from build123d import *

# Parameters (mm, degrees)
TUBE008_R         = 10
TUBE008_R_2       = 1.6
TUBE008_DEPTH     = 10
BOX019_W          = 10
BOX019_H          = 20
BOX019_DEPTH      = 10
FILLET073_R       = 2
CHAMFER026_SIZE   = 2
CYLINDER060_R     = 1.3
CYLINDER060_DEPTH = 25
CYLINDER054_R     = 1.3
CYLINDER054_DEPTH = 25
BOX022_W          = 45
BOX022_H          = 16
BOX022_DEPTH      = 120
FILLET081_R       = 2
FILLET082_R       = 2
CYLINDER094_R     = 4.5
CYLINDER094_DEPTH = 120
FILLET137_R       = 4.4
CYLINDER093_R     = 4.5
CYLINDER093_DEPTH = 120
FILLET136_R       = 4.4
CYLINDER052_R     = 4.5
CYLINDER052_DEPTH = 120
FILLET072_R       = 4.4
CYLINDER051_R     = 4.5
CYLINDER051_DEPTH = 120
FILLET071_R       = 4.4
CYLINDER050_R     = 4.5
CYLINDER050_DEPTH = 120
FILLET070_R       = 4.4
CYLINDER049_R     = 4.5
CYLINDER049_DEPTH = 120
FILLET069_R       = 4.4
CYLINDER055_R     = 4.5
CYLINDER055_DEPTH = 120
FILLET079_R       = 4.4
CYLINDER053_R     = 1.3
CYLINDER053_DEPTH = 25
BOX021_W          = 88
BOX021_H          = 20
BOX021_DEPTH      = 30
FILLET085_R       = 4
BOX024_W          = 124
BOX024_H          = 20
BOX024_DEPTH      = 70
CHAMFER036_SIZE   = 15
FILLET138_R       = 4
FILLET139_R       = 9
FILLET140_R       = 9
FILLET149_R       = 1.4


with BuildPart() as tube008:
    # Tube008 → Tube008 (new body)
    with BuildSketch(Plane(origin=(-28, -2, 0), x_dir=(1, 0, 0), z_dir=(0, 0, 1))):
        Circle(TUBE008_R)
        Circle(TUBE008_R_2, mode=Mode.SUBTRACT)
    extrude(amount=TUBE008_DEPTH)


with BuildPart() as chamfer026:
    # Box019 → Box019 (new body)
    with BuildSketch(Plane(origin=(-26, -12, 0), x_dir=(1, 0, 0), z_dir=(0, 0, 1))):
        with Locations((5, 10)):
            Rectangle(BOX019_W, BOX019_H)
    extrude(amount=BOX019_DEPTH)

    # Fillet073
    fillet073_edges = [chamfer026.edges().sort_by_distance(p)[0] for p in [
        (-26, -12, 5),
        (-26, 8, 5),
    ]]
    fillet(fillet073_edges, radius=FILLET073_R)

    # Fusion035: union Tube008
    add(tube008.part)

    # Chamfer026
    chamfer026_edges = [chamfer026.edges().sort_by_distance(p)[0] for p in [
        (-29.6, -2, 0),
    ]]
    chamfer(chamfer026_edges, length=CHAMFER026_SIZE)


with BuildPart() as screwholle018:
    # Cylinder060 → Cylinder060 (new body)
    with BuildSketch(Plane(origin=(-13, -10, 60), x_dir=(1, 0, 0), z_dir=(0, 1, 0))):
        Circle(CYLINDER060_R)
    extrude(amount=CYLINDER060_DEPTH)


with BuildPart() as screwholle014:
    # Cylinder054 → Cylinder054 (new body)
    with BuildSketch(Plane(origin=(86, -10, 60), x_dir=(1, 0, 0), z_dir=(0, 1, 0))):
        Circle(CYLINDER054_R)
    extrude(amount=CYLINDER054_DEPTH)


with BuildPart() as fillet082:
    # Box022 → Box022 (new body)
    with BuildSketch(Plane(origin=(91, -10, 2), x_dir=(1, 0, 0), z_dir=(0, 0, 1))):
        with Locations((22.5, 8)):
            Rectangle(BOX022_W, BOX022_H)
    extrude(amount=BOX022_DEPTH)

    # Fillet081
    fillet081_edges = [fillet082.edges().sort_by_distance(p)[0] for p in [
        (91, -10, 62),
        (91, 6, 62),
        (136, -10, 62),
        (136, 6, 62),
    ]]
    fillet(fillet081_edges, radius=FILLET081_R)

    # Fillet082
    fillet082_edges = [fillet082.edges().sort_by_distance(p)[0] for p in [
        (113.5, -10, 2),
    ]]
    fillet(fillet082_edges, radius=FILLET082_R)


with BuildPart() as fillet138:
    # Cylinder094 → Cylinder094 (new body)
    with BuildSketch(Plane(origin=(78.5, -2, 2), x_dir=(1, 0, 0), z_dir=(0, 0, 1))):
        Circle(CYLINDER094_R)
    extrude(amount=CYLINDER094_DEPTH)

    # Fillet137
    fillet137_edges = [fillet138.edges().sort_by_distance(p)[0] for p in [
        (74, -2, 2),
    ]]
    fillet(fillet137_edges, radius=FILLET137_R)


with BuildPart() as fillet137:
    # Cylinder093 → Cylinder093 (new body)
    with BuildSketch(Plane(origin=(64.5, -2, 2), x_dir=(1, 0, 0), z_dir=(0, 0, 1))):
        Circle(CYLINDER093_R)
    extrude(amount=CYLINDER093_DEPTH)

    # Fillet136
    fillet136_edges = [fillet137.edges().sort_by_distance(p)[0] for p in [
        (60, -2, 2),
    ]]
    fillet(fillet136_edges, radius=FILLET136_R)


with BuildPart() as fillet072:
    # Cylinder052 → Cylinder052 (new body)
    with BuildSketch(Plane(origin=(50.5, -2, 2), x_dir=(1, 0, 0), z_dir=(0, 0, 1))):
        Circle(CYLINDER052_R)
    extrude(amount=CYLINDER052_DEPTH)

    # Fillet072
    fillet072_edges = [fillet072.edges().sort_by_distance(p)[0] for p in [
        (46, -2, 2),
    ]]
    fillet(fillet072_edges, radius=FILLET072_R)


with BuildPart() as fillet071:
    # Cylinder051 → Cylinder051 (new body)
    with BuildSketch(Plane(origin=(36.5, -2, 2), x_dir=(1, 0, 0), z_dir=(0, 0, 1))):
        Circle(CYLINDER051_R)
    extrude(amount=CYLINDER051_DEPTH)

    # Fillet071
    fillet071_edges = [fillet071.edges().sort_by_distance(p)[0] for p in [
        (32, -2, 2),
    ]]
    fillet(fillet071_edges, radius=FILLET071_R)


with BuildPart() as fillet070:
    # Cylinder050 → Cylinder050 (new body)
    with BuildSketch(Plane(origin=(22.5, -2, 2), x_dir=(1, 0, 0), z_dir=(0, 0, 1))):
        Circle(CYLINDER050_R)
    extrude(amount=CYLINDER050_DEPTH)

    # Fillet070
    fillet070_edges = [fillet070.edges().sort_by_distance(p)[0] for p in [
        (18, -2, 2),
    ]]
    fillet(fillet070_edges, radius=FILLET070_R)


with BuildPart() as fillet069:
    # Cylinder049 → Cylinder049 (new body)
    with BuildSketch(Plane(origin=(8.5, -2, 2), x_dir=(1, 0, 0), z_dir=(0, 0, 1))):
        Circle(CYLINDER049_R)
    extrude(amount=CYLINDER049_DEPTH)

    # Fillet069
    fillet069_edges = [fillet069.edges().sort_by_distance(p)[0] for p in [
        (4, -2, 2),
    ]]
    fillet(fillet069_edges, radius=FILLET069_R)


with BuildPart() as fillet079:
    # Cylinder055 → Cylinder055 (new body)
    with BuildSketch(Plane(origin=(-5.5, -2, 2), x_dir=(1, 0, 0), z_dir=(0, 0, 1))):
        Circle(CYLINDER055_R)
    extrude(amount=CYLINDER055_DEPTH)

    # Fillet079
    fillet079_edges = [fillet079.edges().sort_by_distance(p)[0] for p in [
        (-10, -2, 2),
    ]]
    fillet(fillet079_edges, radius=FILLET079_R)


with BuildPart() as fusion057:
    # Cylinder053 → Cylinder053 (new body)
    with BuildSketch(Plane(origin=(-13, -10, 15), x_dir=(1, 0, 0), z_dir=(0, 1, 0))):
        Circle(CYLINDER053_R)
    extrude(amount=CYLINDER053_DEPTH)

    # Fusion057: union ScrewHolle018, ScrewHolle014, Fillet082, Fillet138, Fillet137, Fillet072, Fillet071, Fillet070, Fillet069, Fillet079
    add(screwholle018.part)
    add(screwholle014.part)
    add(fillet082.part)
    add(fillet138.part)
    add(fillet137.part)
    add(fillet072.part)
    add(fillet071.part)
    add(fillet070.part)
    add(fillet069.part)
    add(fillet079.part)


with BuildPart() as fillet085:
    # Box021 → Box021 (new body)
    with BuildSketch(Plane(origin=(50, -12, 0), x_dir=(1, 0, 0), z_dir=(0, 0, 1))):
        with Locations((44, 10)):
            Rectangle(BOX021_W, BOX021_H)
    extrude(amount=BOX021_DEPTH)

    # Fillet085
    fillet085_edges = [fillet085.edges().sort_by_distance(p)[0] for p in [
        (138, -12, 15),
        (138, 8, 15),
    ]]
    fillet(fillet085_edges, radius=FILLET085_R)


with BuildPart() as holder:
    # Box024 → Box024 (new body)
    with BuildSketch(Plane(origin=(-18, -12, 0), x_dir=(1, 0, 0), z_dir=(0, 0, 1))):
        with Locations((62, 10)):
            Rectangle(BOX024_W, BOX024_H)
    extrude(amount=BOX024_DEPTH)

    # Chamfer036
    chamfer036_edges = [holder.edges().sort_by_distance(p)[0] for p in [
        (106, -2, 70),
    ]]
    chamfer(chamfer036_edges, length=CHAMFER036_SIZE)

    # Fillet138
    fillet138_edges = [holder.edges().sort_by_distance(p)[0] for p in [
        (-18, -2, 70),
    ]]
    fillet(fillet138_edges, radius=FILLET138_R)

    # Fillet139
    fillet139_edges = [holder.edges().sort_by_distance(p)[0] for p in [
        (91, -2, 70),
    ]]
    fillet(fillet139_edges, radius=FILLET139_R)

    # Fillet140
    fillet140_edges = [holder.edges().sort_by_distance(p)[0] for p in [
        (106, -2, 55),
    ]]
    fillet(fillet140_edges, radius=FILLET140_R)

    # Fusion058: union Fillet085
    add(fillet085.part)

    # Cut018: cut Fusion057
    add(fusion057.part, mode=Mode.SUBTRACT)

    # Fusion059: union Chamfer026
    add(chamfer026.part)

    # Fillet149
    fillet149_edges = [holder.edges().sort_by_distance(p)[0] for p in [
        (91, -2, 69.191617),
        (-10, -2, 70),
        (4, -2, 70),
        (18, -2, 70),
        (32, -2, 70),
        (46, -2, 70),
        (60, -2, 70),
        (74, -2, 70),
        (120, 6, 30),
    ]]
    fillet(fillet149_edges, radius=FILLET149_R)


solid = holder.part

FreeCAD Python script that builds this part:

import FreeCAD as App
import Part
import Sketcher

V = App.Vector


def edges_at(feature, points):
    """Names of the edges that pass closest to the given points."""
    edges = feature.Shape.Edges
    near = lambda p: min(range(len(edges)), key=lambda i: edges[i].distToShape(Part.Vertex(*p))[0])
    return sorted({f"Edge{near(p) + 1}" for p in points})

doc = App.newDocument("Part")
body = doc.addObject("PartDesign::Body", "Body")

sketch1 = body.newObject("Sketcher::SketchObject", "Sketch")
sketch1.AttachmentSupport = (doc.getObject("XY_Plane"), [""])
sketch1.MapMode = "FlatFace"
sketch1.addGeometry([
    Part.Circle(V(-28, -2, 0), V(0, 0, 1), 10),
    Part.Circle(V(-28, -2, 0), V(0, 0, 1), 1.6),
], False)
sketch1.addConstraint([
    Sketcher.Constraint("Coincident", 1, 3, 0, 3),
    Sketcher.Constraint("Diameter", 0, 20.0),
    Sketcher.Constraint("Diameter", 1, 3.2),
    Sketcher.Constraint("DistanceX", 0, 3, -1, 1, 28.0),
    Sketcher.Constraint("DistanceY", 0, 3, -1, 1, 2.0),
])
pad1 = body.newObject("PartDesign::Pad", "Pad")
pad1.Profile = sketch1
pad1.Length = 10
body2 = doc.addObject("PartDesign::Body", "Body001")

sketch2 = body2.newObject("Sketcher::SketchObject", "Sketch001")
sketch2.AttachmentSupport = (doc.getObject("XY_Plane001"), [""])
sketch2.MapMode = "FlatFace"
sketch2.addGeometry([
    Part.LineSegment(V(-26, 8, 0), V(-26, -12, 0)),
    Part.LineSegment(V(-26, -12, 0), V(-16, -12, 0)),
    Part.LineSegment(V(-16, -12, 0), V(-16, 8, 0)),
    Part.LineSegment(V(-16, 8, 0), V(-26, 8, 0)),
], False)
sketch2.addConstraint([
    Sketcher.Constraint("Coincident", 0, 2, 1, 1),
    Sketcher.Constraint("Coincident", 1, 2, 2, 1),
    Sketcher.Constraint("Coincident", 2, 2, 3, 1),
    Sketcher.Constraint("Coincident", 3, 2, 0, 1),
    Sketcher.Constraint("Vertical", 0),
    Sketcher.Constraint("Horizontal", 1),
    Sketcher.Constraint("Vertical", 2),
    Sketcher.Constraint("Horizontal", 3),
    Sketcher.Constraint("DistanceX", 1, 1, 1, 2, 10.0),
    Sketcher.Constraint("DistanceY", 0, 2, 0, 1, 20.0),
    Sketcher.Constraint("DistanceX", 0, 2, -1, 1, 26.0),
    Sketcher.Constraint("DistanceY", 0, 2, -1, 1, 12.0),
])
pad2 = body2.newObject("PartDesign::Pad", "Pad001")
pad2.Profile = sketch2
pad2.Length = 10
doc.recompute()

fillet = body2.newObject("PartDesign::Fillet", "Fillet")
fillet.Base = (pad2, edges_at(pad2, [(-26, -12, 5), (-26, 8, 5)]))
fillet.Radius = 2
doc.recompute()

boolean = body2.newObject("PartDesign::Boolean", "Boolean")
boolean.Type = "Fuse"
boolean.addObjects([body])
doc.recompute()

chamfer = body2.newObject("PartDesign::Chamfer", "Chamfer")
chamfer.Base = (boolean, edges_at(boolean, [(-29.6, -2, 0)]))
chamfer.Size = 2
body3 = doc.addObject("PartDesign::Body", "Body002")

sketch3 = body3.newObject("Sketcher::SketchObject", "Sketch002")
sketch3.AttachmentSupport = (doc.getObject("XZ_Plane002"), [""])
sketch3.MapMode = "FlatFace"
sketch3.AttachmentOffset = App.Placement(V(0, 0, 10), App.Rotation())
sketch3.addGeometry(Part.Circle(V(-13, 60, 0), V(0, 0, 1), 1.3), False)
sketch3.addConstraint([
    Sketcher.Constraint("Diameter", 0, 2.6),
    Sketcher.Constraint("DistanceX", 0, 3, -1, 1, 13.0),
    Sketcher.Constraint("DistanceY", -1, 1, 0, 3, 60.0),
])
pad3 = body3.newObject("PartDesign::Pad", "Pad002")
pad3.Profile = sketch3
pad3.Length = 25
pad3.Reversed = True
body4 = doc.addObject("PartDesign::Body", "Body003")

sketch4 = body4.newObject("Sketcher::SketchObject", "Sketch003")
sketch4.AttachmentSupport = (doc.getObject("XZ_Plane003"), [""])
sketch4.MapMode = "FlatFace"
sketch4.AttachmentOffset = App.Placement(V(0, 0, 10), App.Rotation())
sketch4.addGeometry(Part.Circle(V(86, 60, 0), V(0, 0, 1), 1.3), False)
sketch4.addConstraint([
    Sketcher.Constraint("Diameter", 0, 2.6),
    Sketcher.Constraint("DistanceX", -1, 1, 0, 3, 86.0),
    Sketcher.Constraint("DistanceY", -1, 1, 0, 3, 60.0),
])
pad4 = body4.newObject("PartDesign::Pad", "Pad003")
pad4.Profile = sketch4
pad4.Length = 25
pad4.Reversed = True
body5 = doc.addObject("PartDesign::Body", "Body004")

sketch5 = body5.newObject("Sketcher::SketchObject", "Sketch004")
sketch5.AttachmentSupport = (doc.getObject("XY_Plane004"), [""])
sketch5.MapMode = "FlatFace"
sketch5.AttachmentOffset = App.Placement(V(0, 0, 2), App.Rotation())
sketch5.addGeometry([
    Part.LineSegment(V(91, 6, 0), V(91, -10, 0)),
    Part.LineSegment(V(91, -10, 0), V(136, -10, 0)),
    Part.LineSegment(V(136, -10, 0), V(136, 6, 0)),
    Part.LineSegment(V(136, 6, 0), V(91, 6, 0)),
], False)
sketch5.addConstraint([
    Sketcher.Constraint("Coincident", 0, 2, 1, 1),
    Sketcher.Constraint("Coincident", 1, 2, 2, 1),
    Sketcher.Constraint("Coincident", 2, 2, 3, 1),
    Sketcher.Constraint("Coincident", 3, 2, 0, 1),
    Sketcher.Constraint("Vertical", 0),
    Sketcher.Constraint("Horizontal", 1),
    Sketcher.Constraint("Vertical", 2),
    Sketcher.Constraint("Horizontal", 3),
    Sketcher.Constraint("DistanceX", 1, 1, 1, 2, 45.0),
    Sketcher.Constraint("DistanceY", 0, 2, 0, 1, 16.0),
    Sketcher.Constraint("DistanceX", -1, 1, 0, 2, 91.0),
    Sketcher.Constraint("DistanceY", 0, 2, -1, 1, 10.0),
])
pad5 = body5.newObject("PartDesign::Pad", "Pad004")
pad5.Profile = sketch5
pad5.Length = 120
doc.recompute()

fillet2 = body5.newObject("PartDesign::Fillet", "Fillet001")
fillet2.Base = (pad5, edges_at(pad5, [
    (91, -10, 62),
    (91, 6, 62),
    (136, -10, 62),
    (136, 6, 62),
]))
fillet2.Radius = 2
doc.recompute()

fillet3 = body5.newObject("PartDesign::Fillet", "Fillet002")
fillet3.Base = (fillet2, edges_at(fillet2, [(113.5, -10, 2)]))
fillet3.Radius = 2
body6 = doc.addObject("PartDesign::Body", "Body005")

sketch6 = body6.newObject("Sketcher::SketchObject", "Sketch005")
sketch6.AttachmentSupport = (doc.getObject("XY_Plane005"), [""])
sketch6.MapMode = "FlatFace"
sketch6.AttachmentOffset = App.Placement(V(0, 0, 2), App.Rotation())
sketch6.addGeometry(Part.Circle(V(78.5, -2, 0), V(0, 0, 1), 4.5), False)
sketch6.addConstraint([
    Sketcher.Constraint("Diameter", 0, 9.0),
    Sketcher.Constraint("DistanceY", 0, 3, -1, 1, 2.0),
    Sketcher.Constraint("DistanceX", -1, 1, 0, 3, 78.5),
])
pad6 = body6.newObject("PartDesign::Pad", "Pad005")
pad6.Profile = sketch6
pad6.Length = 120
doc.recompute()

fillet4 = body6.newObject("PartDesign::Fillet", "Fillet003")
fillet4.Base = (pad6, edges_at(pad6, [(74, -2, 2)]))
fillet4.Radius = 4.4
body7 = doc.addObject("PartDesign::Body", "Body006")

sketch7 = body7.newObject("Sketcher::SketchObject", "Sketch006")
sketch7.AttachmentSupport = (doc.getObject("XY_Plane006"), [""])
sketch7.MapMode = "FlatFace"
sketch7.AttachmentOffset = App.Placement(V(0, 0, 2), App.Rotation())
sketch7.addGeometry(Part.Circle(V(64.5, -2, 0), V(0, 0, 1), 4.5), False)
sketch7.addConstraint([
    Sketcher.Constraint("Diameter", 0, 9.0),
    Sketcher.Constraint("DistanceY", 0, 3, -1, 1, 2.0),
    Sketcher.Constraint("DistanceX", -1, 1, 0, 3, 64.5),
])
pad7 = body7.newObject("PartDesign::Pad", "Pad006")
pad7.Profile = sketch7
pad7.Length = 120
doc.recompute()

fillet5 = body7.newObject("PartDesign::Fillet", "Fillet004")
fillet5.Base = (pad7, edges_at(pad7, [(60, -2, 2)]))
fillet5.Radius = 4.4
body8 = doc.addObject("PartDesign::Body", "Body007")

sketch8 = body8.newObject("Sketcher::SketchObject", "Sketch007")
sketch8.AttachmentSupport = (doc.getObject("XY_Plane007"), [""])
sketch8.MapMode = "FlatFace"
sketch8.AttachmentOffset = App.Placement(V(0, 0, 2), App.Rotation())
sketch8.addGeometry(Part.Circle(V(50.5, -2, 0), V(0, 0, 1), 4.5), False)
sketch8.addConstraint([
    Sketcher.Constraint("Diameter", 0, 9.0),
    Sketcher.Constraint("DistanceY", 0, 3, -1, 1, 2.0),
    Sketcher.Constraint("DistanceX", -1, 1, 0, 3, 50.5),
])
pad8 = body8.newObject("PartDesign::Pad", "Pad007")
pad8.Profile = sketch8
pad8.Length = 120
doc.recompute()

fillet6 = body8.newObject("PartDesign::Fillet", "Fillet005")
fillet6.Base = (pad8, edges_at(pad8, [(46, -2, 2)]))
fillet6.Radius = 4.4
body9 = doc.addObject("PartDesign::Body", "Body008")

sketch9 = body9.newObject("Sketcher::SketchObject", "Sketch008")
sketch9.AttachmentSupport = (doc.getObject("XY_Plane008"), [""])
sketch9.MapMode = "FlatFace"
sketch9.AttachmentOffset = App.Placement(V(0, 0, 2), App.Rotation())
sketch9.addGeometry(Part.Circle(V(36.5, -2, 0), V(0, 0, 1), 4.5), False)
sketch9.addConstraint([
    Sketcher.Constraint("Diameter", 0, 9.0),
    Sketcher.Constraint("DistanceY", 0, 3, -1, 1, 2.0),
    Sketcher.Constraint("DistanceX", -1, 1, 0, 3, 36.5),
])
pad9 = body9.newObject("PartDesign::Pad", "Pad008")
pad9.Profile = sketch9
pad9.Length = 120
doc.recompute()

fillet7 = body9.newObject("PartDesign::Fillet", "Fillet006")
fillet7.Base = (pad9, edges_at(pad9, [(32, -2, 2)]))
fillet7.Radius = 4.4
body10 = doc.addObject("PartDesign::Body", "Body009")

sketch10 = body10.newObject("Sketcher::SketchObject", "Sketch009")
sketch10.AttachmentSupport = (doc.getObject("XY_Plane009"), [""])
sketch10.MapMode = "FlatFace"
sketch10.AttachmentOffset = App.Placement(V(0, 0, 2), App.Rotation())
sketch10.addGeometry(Part.Circle(V(22.5, -2, 0), V(0, 0, 1), 4.5), False)
sketch10.addConstraint([
    Sketcher.Constraint("Diameter", 0, 9.0),
    Sketcher.Constraint("DistanceY", 0, 3, -1, 1, 2.0),
    Sketcher.Constraint("DistanceX", -1, 1, 0, 3, 22.5),
])
pad10 = body10.newObject("PartDesign::Pad", "Pad009")
pad10.Profile = sketch10
pad10.Length = 120
doc.recompute()

fillet8 = body10.newObject("PartDesign::Fillet", "Fillet007")
fillet8.Base = (pad10, edges_at(pad10, [(18, -2, 2)]))
fillet8.Radius = 4.4
body11 = doc.addObject("PartDesign::Body", "Body010")

sketch11 = body11.newObject("Sketcher::SketchObject", "Sketch010")
sketch11.AttachmentSupport = (doc.getObject("XY_Plane010"), [""])
sketch11.MapMode = "FlatFace"
sketch11.AttachmentOffset = App.Placement(V(0, 0, 2), App.Rotation())
sketch11.addGeometry(Part.Circle(V(8.5, -2, 0), V(0, 0, 1), 4.5), False)
sketch11.addConstraint([
    Sketcher.Constraint("Diameter", 0, 9.0),
    Sketcher.Constraint("DistanceY", 0, 3, -1, 1, 2.0),
    Sketcher.Constraint("DistanceX", -1, 1, 0, 3, 8.5),
])
pad11 = body11.newObject("PartDesign::Pad", "Pad010")
pad11.Profile = sketch11
pad11.Length = 120
doc.recompute()

fillet9 = body11.newObject("PartDesign::Fillet", "Fillet008")
fillet9.Base = (pad11, edges_at(pad11, [(4, -2, 2)]))
fillet9.Radius = 4.4
body12 = doc.addObject("PartDesign::Body", "Body011")

sketch12 = body12.newObject("Sketcher::SketchObject", "Sketch011")
sketch12.AttachmentSupport = (doc.getObject("XY_Plane011"), [""])
sketch12.MapMode = "FlatFace"
sketch12.AttachmentOffset = App.Placement(V(0, 0, 2), App.Rotation())
sketch12.addGeometry(Part.Circle(V(-5.5, -2, 0), V(0, 0, 1), 4.5), False)
sketch12.addConstraint([
    Sketcher.Constraint("Diameter", 0, 9.0),
    Sketcher.Constraint("DistanceY", 0, 3, -1, 1, 2.0),
    Sketcher.Constraint("DistanceX", 0, 3, -1, 1, 5.5),
])
pad12 = body12.newObject("PartDesign::Pad", "Pad011")
pad12.Profile = sketch12
pad12.Length = 120
doc.recompute()

fillet10 = body12.newObject("PartDesign::Fillet", "Fillet009")
fillet10.Base = (pad12, edges_at(pad12, [(-10, -2, 2)]))
fillet10.Radius = 4.4
body13 = doc.addObject("PartDesign::Body", "Body012")
body13.AllowCompound = True

sketch13 = body13.newObject("Sketcher::SketchObject", "Sketch012")
sketch13.AttachmentSupport = (doc.getObject("XZ_Plane012"), [""])
sketch13.MapMode = "FlatFace"
sketch13.AttachmentOffset = App.Placement(V(0, 0, 10), App.Rotation())
sketch13.addGeometry(Part.Circle(V(-13, 15, 0), V(0, 0, 1), 1.3), False)
sketch13.addConstraint([
    Sketcher.Constraint("Diameter", 0, 2.6),
    Sketcher.Constraint("DistanceX", 0, 3, -1, 1, 13.0),
    Sketcher.Constraint("DistanceY", -1, 1, 0, 3, 15.0),
])
pad13 = body13.newObject("PartDesign::Pad", "Pad012")
pad13.Profile = sketch13
pad13.Length = 25
pad13.Reversed = True
doc.recompute()

boolean2 = body13.newObject("PartDesign::Boolean", "Boolean001")
boolean2.Type = "Fuse"
boolean2.addObjects([body3])
doc.recompute()

boolean3 = body13.newObject("PartDesign::Boolean", "Boolean002")
boolean3.Type = "Fuse"
boolean3.addObjects([body4])
doc.recompute()

boolean4 = body13.newObject("PartDesign::Boolean", "Boolean003")
boolean4.Type = "Fuse"
boolean4.addObjects([body5])
doc.recompute()

boolean5 = body13.newObject("PartDesign::Boolean", "Boolean004")
boolean5.Type = "Fuse"
boolean5.addObjects([body6])
doc.recompute()

boolean6 = body13.newObject("PartDesign::Boolean", "Boolean005")
boolean6.Type = "Fuse"
boolean6.addObjects([body7])
doc.recompute()

boolean7 = body13.newObject("PartDesign::Boolean", "Boolean006")
boolean7.Type = "Fuse"
boolean7.addObjects([body8])
doc.recompute()

boolean8 = body13.newObject("PartDesign::Boolean", "Boolean007")
boolean8.Type = "Fuse"
boolean8.addObjects([body9])
doc.recompute()

boolean9 = body13.newObject("PartDesign::Boolean", "Boolean008")
boolean9.Type = "Fuse"
boolean9.addObjects([body10])
doc.recompute()

boolean10 = body13.newObject("PartDesign::Boolean", "Boolean009")
boolean10.Type = "Fuse"
boolean10.addObjects([body11])
doc.recompute()

boolean11 = body13.newObject("PartDesign::Boolean", "Boolean010")
boolean11.Type = "Fuse"
boolean11.addObjects([body12])
body14 = doc.addObject("PartDesign::Body", "Body013")

sketch14 = body14.newObject("Sketcher::SketchObject", "Sketch013")
sketch14.AttachmentSupport = (doc.getObject("XY_Plane013"), [""])
sketch14.MapMode = "FlatFace"
sketch14.addGeometry([
    Part.LineSegment(V(50, 8, 0), V(50, -12, 0)),
    Part.LineSegment(V(50, -12, 0), V(138, -12, 0)),
    Part.LineSegment(V(138, -12, 0), V(138, 8, 0)),
    Part.LineSegment(V(138, 8, 0), V(50, 8, 0)),
], False)
sketch14.addConstraint([
    Sketcher.Constraint("Coincident", 0, 2, 1, 1),
    Sketcher.Constraint("Coincident", 1, 2, 2, 1),
    Sketcher.Constraint("Coincident", 2, 2, 3, 1),
    Sketcher.Constraint("Coincident", 3, 2, 0, 1),
    Sketcher.Constraint("Vertical", 0),
    Sketcher.Constraint("Horizontal", 1),
    Sketcher.Constraint("Vertical", 2),
    Sketcher.Constraint("Horizontal", 3),
    Sketcher.Constraint("DistanceX", 1, 1, 1, 2, 88.0),
    Sketcher.Constraint("DistanceY", 0, 2, 0, 1, 20.0),
    Sketcher.Constraint("DistanceX", -1, 1, 0, 2, 50.0),
    Sketcher.Constraint("DistanceY", 0, 2, -1, 1, 12.0),
])
pad14 = body14.newObject("PartDesign::Pad", "Pad013")
pad14.Profile = sketch14
pad14.Length = 30
doc.recompute()

fillet11 = body14.newObject("PartDesign::Fillet", "Fillet010")
fillet11.Base = (pad14, edges_at(pad14, [(138, -12, 15), (138, 8, 15)]))
fillet11.Radius = 4
body15 = doc.addObject("PartDesign::Body", "Body014")

sketch15 = body15.newObject("Sketcher::SketchObject", "Sketch014")
sketch15.AttachmentSupport = (doc.getObject("XY_Plane014"), [""])
sketch15.MapMode = "FlatFace"
sketch15.addGeometry([
    Part.LineSegment(V(-18, 8, 0), V(-18, -12, 0)),
    Part.LineSegment(V(-18, -12, 0), V(106, -12, 0)),
    Part.LineSegment(V(106, -12, 0), V(106, 8, 0)),
    Part.LineSegment(V(106, 8, 0), V(-18, 8, 0)),
], False)
sketch15.addConstraint([
    Sketcher.Constraint("Coincident", 0, 2, 1, 1),
    Sketcher.Constraint("Coincident", 1, 2, 2, 1),
    Sketcher.Constraint("Coincident", 2, 2, 3, 1),
    Sketcher.Constraint("Coincident", 3, 2, 0, 1),
    Sketcher.Constraint("Vertical", 0),
    Sketcher.Constraint("Horizontal", 1),
    Sketcher.Constraint("Vertical", 2),
    Sketcher.Constraint("Horizontal", 3),
    Sketcher.Constraint("DistanceX", 1, 1, 1, 2, 124.0),
    Sketcher.Constraint("DistanceY", 0, 2, 0, 1, 20.0),
    Sketcher.Constraint("DistanceX", 0, 2, -1, 1, 18.0),
    Sketcher.Constraint("DistanceY", 0, 2, -1, 1, 12.0),
])
pad15 = body15.newObject("PartDesign::Pad", "Pad014")
pad15.Profile = sketch15
pad15.Length = 70
doc.recompute()

chamfer2 = body15.newObject("PartDesign::Chamfer", "Chamfer001")
chamfer2.Base = (pad15, edges_at(pad15, [(106, -2, 70)]))
chamfer2.Size = 15
doc.recompute()

fillet12 = body15.newObject("PartDesign::Fillet", "Fillet011")
fillet12.Base = (chamfer2, edges_at(chamfer2, [(-18, -2, 70)]))
fillet12.Radius = 4
doc.recompute()

fillet13 = body15.newObject("PartDesign::Fillet", "Fillet012")
fillet13.Base = (fillet12, edges_at(fillet12, [(91, -2, 70)]))
fillet13.Radius = 9
doc.recompute()

fillet14 = body15.newObject("PartDesign::Fillet", "Fillet013")
fillet14.Base = (fillet13, edges_at(fillet13, [(106, -2, 55)]))
fillet14.Radius = 9
doc.recompute()

boolean12 = body15.newObject("PartDesign::Boolean", "Boolean011")
boolean12.Type = "Fuse"
boolean12.addObjects([body14])
doc.recompute()

boolean13 = body15.newObject("PartDesign::Boolean", "Boolean012")
boolean13.Type = "Cut"
boolean13.addObjects([body13])
doc.recompute()

boolean14 = body15.newObject("PartDesign::Boolean", "Boolean013")
boolean14.Type = "Fuse"
boolean14.addObjects([body2])
doc.recompute()

fillet15 = body15.newObject("PartDesign::Fillet", "Fillet014")
fillet15.Base = (boolean14, edges_at(boolean14, [
    (91, -2, 69.192),
    (-10, -2, 70),
    (4, -2, 70),
    (18, -2, 70),
    (32, -2, 70),
    (46, -2, 70),
    (60, -2, 70),
    (74, -2, 70),
    (120, 6, 30),
]))
fillet15.Radius = 1.4

doc.recompute()
